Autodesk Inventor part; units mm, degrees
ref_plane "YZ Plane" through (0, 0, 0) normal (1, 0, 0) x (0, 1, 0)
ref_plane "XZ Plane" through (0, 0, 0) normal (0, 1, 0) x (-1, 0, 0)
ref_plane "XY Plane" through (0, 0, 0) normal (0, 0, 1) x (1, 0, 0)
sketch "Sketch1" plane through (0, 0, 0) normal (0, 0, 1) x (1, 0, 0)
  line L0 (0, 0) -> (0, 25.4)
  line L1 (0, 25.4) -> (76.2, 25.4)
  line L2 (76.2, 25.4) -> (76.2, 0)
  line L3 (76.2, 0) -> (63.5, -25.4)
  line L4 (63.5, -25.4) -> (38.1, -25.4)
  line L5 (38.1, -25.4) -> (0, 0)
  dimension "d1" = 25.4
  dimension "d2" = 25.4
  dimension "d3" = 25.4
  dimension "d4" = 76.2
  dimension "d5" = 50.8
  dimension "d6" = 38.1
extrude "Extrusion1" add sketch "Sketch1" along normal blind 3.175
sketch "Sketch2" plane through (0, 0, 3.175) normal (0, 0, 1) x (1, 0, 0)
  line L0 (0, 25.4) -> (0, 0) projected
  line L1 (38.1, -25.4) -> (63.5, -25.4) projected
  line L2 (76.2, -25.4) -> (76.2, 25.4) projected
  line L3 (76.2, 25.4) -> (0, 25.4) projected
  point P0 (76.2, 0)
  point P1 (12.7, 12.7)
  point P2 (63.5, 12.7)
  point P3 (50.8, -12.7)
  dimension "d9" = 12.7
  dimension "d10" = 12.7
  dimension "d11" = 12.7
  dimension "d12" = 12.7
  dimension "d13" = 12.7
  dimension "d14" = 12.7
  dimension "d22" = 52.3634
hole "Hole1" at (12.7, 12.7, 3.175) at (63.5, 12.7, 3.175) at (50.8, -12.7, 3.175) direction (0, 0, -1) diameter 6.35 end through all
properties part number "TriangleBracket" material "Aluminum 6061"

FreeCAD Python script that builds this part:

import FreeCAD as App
import Part
import Sketcher
from FreeCAD import Vector
Q = App.Units.Quantity


def add_polygon(sketch, points):
    """Adds a closed chain of lines whose ends are joined by coincident constraints."""
    first, n = sketch.GeometryCount, len(points)
    for a, b in zip(points, points[1:] + points[:1]):
        sketch.addGeometry(Part.LineSegment(App.Vector(*a, 0), App.Vector(*b, 0)), False)
    for i in range(n):
        sketch.addConstraint(Sketcher.Constraint("Coincident", first + i, 2, first + (i + 1) % n, 1))

doc = App.newDocument("Part")
body = doc.addObject("PartDesign::Body", "Body")

sketch1 = body.newObject("Sketcher::SketchObject", "Sketch")
sketch1.AttachmentSupport = (doc.getObject("XY_Plane"), [""])
sketch1.MapMode = "FlatFace"
add_polygon(sketch1, [(0, 25), (0, 0), (38, -25), (64, -25), (76, 0), (76, 25)])
sketch1.addConstraint(Sketcher.Constraint("Vertical", 0))
sketch1.addConstraint(Sketcher.Constraint("Horizontal", 2))
sketch1.addConstraint(Sketcher.Constraint("Vertical", 4))
sketch1.addConstraint(Sketcher.Constraint("Horizontal", 5))
sketch1.addConstraint(Sketcher.Constraint("Coincident", 0, 2, -1, 1))
sketch1.addConstraint(Sketcher.Constraint("PointOnObject", 3, 2, -1))
sketch1.addConstraint(Sketcher.Constraint("Equal", 2, 0))
sketch1.addConstraint(Sketcher.Constraint("DistanceX", 2, 1, 2, 2, Q("1 in")))
sketch1.addConstraint(Sketcher.Constraint("DistanceX", 5, 2, 5, 1, Q("3 in")))
sketch1.addConstraint(Sketcher.Constraint("DistanceY", 1, 2, -1, 1, Q("1 in")))
sketch1.addConstraint(Sketcher.Constraint("DistanceX", -1, 1, 1, 2, Q("1.5 in")))
pad1 = body.newObject("PartDesign::Pad", "Pad")
pad1.Profile = sketch1
pad1.Length = Q("0.125 in")

sketch2 = body.newObject("Sketcher::SketchObject", "Sketch001")
sketch2.AttachmentSupport = (doc.getObject("XY_Plane"), [""])
sketch2.MapMode = "FlatFace"
sketch2.AttachmentOffset = App.Placement(Vector(0, 0, 0.125 * 25.4), App.Rotation())
sketch2.addGeometry(Part.Circle(Vector(12.7, 12.7, 0), Vector(0, 0, 1), 3.2), False)
sketch2.addGeometry(Part.Circle(Vector(63.5, 12.7, 0), Vector(0, 0, 1), 3.2), False)
sketch2.addGeometry(Part.Circle(Vector(50.8, -12.7, 0), Vector(0, 0, 1), 3.2), False)
sketch2.addConstraint(Sketcher.Constraint("Equal", 0, 1))
sketch2.addConstraint(Sketcher.Constraint("Equal", 1, 2))
sketch2.addConstraint(Sketcher.Constraint("Horizontal", 0, 3, 1, 3))
sketch2.addConstraint(Sketcher.Constraint("Diameter", 0, Q("0.25 in")))
sketch2.addConstraint(Sketcher.Constraint("DistanceX", -1, 1, 2, 3, Q("2 in")))
sketch2.addConstraint(Sketcher.Constraint("DistanceX", 0, 3, 1, 3, Q("2 in")))
sketch2.addConstraint(Sketcher.Constraint("DistanceY", 2, 3, 1, 3, Q("1 in")))
sketch2.addConstraint(Sketcher.Constraint("DistanceX", -1, 1, 0, 3, Q("0.5 in")))
sketch2.addConstraint(Sketcher.Constraint("DistanceY", -1, 1, 0, 3, Q("0.5 in")))
doc.recompute()
hole = body.newObject("PartDesign::Hole", "Hole")
hole.Profile = sketch2
hole.ThreadType = "None"
hole.Diameter = Q("0.25 in")
hole.DepthType = "ThroughAll"

doc.recompute()
